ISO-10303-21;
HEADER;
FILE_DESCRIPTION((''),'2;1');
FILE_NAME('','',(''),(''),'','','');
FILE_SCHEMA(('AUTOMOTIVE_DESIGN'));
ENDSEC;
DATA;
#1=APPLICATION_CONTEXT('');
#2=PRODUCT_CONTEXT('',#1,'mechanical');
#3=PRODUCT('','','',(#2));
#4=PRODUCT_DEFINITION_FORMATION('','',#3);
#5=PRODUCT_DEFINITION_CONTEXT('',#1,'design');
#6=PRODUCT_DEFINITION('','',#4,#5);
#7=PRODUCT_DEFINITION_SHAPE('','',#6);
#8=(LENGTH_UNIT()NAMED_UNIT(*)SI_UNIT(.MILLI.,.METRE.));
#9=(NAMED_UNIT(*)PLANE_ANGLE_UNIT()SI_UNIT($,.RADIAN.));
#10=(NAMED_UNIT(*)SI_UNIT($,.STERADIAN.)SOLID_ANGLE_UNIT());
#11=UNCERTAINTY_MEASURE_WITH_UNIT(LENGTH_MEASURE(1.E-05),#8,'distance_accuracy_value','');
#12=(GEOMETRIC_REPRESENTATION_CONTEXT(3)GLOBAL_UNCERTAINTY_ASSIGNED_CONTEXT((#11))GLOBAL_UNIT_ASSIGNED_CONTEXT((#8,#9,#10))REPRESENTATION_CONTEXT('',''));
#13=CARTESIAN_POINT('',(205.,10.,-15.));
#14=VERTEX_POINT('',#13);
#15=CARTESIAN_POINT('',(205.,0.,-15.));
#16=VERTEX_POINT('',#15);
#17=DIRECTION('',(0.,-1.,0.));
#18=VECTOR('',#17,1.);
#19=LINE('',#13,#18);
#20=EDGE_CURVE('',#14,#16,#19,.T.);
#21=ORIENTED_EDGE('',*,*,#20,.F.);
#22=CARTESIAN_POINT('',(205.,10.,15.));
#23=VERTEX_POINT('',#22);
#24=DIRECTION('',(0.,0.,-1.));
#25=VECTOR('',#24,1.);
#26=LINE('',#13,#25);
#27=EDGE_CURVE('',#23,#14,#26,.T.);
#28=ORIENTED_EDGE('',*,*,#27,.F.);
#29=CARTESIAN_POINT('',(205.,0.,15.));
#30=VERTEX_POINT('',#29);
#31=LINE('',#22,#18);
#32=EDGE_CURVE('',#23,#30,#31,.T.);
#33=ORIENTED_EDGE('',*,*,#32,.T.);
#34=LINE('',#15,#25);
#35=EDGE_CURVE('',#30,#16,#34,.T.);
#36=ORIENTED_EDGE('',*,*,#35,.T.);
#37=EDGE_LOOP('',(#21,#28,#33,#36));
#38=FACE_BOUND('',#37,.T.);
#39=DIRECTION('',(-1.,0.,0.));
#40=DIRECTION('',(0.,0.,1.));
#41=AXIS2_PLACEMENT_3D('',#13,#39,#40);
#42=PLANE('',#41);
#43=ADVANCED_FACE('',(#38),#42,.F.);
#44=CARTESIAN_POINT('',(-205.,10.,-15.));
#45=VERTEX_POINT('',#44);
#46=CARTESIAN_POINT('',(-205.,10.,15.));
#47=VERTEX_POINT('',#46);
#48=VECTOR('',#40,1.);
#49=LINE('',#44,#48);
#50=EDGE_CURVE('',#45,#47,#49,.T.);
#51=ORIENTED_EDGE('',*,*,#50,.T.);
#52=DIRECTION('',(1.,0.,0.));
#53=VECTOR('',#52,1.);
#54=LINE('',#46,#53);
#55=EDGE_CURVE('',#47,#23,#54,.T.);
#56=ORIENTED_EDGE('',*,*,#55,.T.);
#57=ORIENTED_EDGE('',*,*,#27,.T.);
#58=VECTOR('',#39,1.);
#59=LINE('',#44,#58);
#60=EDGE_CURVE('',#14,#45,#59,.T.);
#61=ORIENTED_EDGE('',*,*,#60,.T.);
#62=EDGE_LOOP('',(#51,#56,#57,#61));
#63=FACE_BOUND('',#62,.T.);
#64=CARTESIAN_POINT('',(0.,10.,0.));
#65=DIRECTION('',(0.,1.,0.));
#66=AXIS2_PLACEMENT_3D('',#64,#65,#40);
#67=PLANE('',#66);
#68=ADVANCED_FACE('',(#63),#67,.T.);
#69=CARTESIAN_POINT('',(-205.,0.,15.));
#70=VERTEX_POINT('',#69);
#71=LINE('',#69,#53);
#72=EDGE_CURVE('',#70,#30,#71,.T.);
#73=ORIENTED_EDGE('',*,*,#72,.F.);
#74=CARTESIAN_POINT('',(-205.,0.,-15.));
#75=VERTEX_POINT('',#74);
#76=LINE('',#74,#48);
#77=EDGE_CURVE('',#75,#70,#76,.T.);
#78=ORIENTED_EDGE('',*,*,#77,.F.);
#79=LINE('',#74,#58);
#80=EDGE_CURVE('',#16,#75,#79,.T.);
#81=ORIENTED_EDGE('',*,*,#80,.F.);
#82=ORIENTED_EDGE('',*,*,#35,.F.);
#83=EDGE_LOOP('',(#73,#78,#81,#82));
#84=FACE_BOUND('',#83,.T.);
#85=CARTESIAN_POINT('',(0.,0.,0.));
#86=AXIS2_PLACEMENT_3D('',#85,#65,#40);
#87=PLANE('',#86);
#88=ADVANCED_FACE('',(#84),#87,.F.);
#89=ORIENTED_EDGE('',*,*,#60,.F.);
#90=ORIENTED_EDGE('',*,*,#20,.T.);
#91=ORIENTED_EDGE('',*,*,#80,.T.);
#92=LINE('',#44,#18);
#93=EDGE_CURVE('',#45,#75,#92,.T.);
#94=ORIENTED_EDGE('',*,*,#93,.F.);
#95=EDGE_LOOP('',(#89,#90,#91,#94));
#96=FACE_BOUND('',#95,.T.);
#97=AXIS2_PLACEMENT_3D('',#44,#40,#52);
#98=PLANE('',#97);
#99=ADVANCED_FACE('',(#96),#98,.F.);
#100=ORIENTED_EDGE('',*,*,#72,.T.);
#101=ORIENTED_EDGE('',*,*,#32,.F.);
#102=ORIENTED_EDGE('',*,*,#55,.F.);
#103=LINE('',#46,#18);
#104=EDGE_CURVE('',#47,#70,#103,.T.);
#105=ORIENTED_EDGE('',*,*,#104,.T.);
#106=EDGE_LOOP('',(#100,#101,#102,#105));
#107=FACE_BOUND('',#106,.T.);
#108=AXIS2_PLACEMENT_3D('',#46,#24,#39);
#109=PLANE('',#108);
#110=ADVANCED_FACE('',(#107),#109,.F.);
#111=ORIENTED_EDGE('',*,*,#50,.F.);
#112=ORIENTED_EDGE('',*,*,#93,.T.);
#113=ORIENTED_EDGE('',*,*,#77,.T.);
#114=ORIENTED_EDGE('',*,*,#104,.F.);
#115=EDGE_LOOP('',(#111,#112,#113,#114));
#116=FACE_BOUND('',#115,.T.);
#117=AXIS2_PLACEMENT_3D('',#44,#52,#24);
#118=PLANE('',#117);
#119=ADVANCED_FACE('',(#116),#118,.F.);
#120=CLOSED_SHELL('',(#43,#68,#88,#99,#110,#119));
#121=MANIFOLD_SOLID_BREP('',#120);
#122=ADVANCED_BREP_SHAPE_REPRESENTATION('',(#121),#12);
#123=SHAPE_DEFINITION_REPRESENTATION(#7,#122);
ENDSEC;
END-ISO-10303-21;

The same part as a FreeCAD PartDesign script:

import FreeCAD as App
import Part
import Sketcher
from FreeCAD import Vector


def add_polygon(sketch, points):
    """Adds a closed chain of lines whose ends are joined by coincident constraints."""
    first, n = sketch.GeometryCount, len(points)
    for a, b in zip(points, points[1:] + points[:1]):
        sketch.addGeometry(Part.LineSegment(App.Vector(*a, 0), App.Vector(*b, 0)), False)
    for i in range(n):
        sketch.addConstraint(Sketcher.Constraint("Coincident", first + i, 2, first + (i + 1) % n, 1))

doc = App.newDocument("Part")
body = doc.addObject("PartDesign::Body", "Body")

sketch1 = body.newObject("Sketcher::SketchObject", "Sketch")
sketch1.AttachmentSupport = (doc.getObject("XZ_Plane"), [""])
sketch1.MapMode = "FlatFace"
add_polygon(sketch1, [(-205, -15), (-205, 15), (205, 15), (205, -15)])
sketch1.addConstraint(Sketcher.Constraint("Vertical", 0))
sketch1.addConstraint(Sketcher.Constraint("Horizontal", 1))
sketch1.addConstraint(Sketcher.Constraint("Vertical", 2))
sketch1.addConstraint(Sketcher.Constraint("Horizontal", 3))
sketch1.addConstraint(Sketcher.Constraint("Symmetric", 0, 2, 2, 2, -1, 1))
sketch1.addConstraint(Sketcher.Constraint("DistanceX", 1, 1, 1, 2, 410.0))
sketch1.addConstraint(Sketcher.Constraint("DistanceY", 0, 1, 0, 2, 30.0))
pad1 = body.newObject("PartDesign::Pad", "Pad")
pad1.Profile = sketch1
pad1.Length = 10
pad1.Reversed = True

doc.recompute()
